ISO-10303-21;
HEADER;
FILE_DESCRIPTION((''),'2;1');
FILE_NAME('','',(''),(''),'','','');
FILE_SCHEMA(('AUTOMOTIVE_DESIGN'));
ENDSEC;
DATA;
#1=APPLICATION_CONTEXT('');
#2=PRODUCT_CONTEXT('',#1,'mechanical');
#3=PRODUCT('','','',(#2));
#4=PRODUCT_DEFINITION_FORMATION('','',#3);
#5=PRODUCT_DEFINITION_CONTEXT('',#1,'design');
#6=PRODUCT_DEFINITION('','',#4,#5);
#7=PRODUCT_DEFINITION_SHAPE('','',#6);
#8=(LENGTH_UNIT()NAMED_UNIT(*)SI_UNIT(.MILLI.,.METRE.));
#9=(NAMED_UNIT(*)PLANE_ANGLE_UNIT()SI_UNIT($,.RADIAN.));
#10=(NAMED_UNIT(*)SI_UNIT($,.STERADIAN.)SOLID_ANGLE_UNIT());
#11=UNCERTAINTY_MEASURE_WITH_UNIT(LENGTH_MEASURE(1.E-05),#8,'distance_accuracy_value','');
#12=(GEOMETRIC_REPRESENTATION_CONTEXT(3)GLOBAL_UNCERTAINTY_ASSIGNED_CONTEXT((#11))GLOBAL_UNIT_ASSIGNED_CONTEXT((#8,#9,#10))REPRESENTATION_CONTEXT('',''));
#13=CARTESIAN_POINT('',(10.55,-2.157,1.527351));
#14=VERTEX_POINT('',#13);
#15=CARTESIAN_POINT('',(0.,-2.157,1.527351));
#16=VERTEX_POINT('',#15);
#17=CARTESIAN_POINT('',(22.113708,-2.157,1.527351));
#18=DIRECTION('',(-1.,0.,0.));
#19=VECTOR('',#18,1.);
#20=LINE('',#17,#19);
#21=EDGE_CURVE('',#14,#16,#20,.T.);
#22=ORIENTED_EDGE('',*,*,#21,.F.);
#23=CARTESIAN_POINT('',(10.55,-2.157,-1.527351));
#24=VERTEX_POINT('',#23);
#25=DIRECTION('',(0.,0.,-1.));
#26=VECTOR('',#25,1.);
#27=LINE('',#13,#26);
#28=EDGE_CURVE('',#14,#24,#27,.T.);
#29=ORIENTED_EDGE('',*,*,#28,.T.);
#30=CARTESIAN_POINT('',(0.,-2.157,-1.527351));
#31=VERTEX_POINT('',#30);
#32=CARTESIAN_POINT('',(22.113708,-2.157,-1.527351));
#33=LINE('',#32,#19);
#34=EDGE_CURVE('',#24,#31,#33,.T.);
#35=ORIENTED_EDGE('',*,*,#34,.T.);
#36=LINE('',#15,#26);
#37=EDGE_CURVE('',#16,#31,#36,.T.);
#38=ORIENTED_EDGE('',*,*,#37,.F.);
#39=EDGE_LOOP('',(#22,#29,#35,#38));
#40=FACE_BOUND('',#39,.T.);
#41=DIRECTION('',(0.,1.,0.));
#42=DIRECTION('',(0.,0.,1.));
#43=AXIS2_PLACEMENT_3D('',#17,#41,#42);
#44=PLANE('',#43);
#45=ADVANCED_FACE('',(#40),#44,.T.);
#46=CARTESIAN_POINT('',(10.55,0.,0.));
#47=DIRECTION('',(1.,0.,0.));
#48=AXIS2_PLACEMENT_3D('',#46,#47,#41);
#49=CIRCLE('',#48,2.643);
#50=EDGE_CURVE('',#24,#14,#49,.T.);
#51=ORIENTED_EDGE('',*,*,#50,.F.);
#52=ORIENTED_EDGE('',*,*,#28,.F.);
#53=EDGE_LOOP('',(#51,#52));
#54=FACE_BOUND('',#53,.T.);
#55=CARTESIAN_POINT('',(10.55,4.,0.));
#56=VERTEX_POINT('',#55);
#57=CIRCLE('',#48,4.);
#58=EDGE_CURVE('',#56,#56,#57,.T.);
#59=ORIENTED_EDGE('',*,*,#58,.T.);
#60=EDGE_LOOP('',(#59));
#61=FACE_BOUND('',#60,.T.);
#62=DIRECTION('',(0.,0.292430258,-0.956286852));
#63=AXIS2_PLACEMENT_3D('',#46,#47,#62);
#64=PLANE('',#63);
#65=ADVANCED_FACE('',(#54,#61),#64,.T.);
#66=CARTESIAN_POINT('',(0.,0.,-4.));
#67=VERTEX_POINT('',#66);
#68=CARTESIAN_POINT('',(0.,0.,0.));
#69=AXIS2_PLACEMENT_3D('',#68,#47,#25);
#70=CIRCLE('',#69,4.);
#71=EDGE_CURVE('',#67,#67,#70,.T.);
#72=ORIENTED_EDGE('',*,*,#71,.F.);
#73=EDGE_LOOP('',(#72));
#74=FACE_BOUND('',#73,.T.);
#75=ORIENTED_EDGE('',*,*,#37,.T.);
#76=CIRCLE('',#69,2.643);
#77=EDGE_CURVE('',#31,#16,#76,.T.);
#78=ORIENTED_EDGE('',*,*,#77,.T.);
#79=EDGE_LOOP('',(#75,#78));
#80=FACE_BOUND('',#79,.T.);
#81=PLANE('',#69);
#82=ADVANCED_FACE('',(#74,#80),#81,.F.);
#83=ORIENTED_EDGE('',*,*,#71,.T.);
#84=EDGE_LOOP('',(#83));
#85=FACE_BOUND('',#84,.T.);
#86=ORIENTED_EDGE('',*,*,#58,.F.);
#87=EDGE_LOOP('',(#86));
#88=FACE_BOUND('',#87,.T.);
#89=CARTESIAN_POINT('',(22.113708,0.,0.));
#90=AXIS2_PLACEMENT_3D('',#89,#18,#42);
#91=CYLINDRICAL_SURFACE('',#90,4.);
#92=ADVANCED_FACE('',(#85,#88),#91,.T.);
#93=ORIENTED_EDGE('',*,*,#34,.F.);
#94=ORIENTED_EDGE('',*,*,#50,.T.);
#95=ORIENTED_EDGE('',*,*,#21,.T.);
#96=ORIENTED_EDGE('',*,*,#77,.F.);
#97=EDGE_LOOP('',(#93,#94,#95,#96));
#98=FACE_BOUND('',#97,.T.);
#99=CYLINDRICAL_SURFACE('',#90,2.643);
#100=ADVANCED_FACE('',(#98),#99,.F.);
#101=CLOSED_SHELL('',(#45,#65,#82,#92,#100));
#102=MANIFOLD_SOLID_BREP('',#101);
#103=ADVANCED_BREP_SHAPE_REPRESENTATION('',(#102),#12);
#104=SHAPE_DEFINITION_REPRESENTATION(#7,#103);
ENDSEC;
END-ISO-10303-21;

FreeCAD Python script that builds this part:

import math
import FreeCAD as App
import Part
import Sketcher
from FreeCAD import Vector
Q = App.Units.Quantity

doc = App.newDocument("Part")
body = doc.addObject("PartDesign::Body", "Body")

sketch1 = body.newObject("Sketcher::SketchObject", "Sketch")
sketch1.AttachmentSupport = (doc.getObject("YZ_Plane"), [""])
sketch1.MapMode = "FlatFace"
sketch1.addGeometry([
    Part.Circle(Vector(0, 0, 0), Vector(0, 0, 1), 4),
    Part.LineSegment(Vector(-2.2, -1.5, 0), Vector(-2.2, 1.5, 0)),
    Part.ArcOfCircle(Part.Circle(Vector(0, 0, 0), Vector(0, 0, 1), 2.6), math.radians(-145), math.radians(145)),
], False)
sketch1.addConstraint([
    Sketcher.Constraint("Coincident", 1, 1, 2, 1),
    Sketcher.Constraint("Coincident", 2, 2, 1, 2),
    Sketcher.Constraint("Vertical", 1),
    Sketcher.Constraint("Coincident", 0, 3, -1, 1),
    Sketcher.Constraint("Coincident", 2, 3, -1, 1),
    Sketcher.Constraint("Diameter", 0, Q("8 mm")),
    Sketcher.Constraint("Radius", 2, Q("2.643 mm")),
    Sketcher.Constraint("DistanceY", 1, 1, 1, 2, Q("3.054701 mm")),
])
pad1 = body.newObject("PartDesign::Pad", "Pad")
pad1.Profile = sketch1
pad1.Length = 10.55

doc.recompute()
